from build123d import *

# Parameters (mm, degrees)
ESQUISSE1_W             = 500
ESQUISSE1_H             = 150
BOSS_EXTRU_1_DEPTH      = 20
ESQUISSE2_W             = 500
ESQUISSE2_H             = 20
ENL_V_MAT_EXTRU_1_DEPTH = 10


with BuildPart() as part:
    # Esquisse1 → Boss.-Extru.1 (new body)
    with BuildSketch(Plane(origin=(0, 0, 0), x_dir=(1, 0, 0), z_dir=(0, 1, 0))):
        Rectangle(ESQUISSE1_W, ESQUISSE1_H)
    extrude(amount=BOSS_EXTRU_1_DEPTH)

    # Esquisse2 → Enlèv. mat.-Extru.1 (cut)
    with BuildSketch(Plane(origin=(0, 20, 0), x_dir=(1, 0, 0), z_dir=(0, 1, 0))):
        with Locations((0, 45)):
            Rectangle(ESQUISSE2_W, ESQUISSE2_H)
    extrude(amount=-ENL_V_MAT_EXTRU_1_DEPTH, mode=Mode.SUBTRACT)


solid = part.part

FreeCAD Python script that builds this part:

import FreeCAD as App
import Part
import Sketcher
from FreeCAD import Vector


def add_polygon(sketch, points):
    """Adds a closed chain of lines whose ends are joined by coincident constraints."""
    first, n = sketch.GeometryCount, len(points)
    for a, b in zip(points, points[1:] + points[:1]):
        sketch.addGeometry(Part.LineSegment(App.Vector(*a, 0), App.Vector(*b, 0)), False)
    for i in range(n):
        sketch.addConstraint(Sketcher.Constraint("Coincident", first + i, 2, first + (i + 1) % n, 1))

doc = App.newDocument("Part")
params = doc.addObject("Spreadsheet::Sheet", "Params")
for row, (alias, value) in enumerate([
    ("sketch1_width", "500 mm"),
    ("sketch1_height", "150 mm"),
    ("pad1_length", "20 mm"),
    ("sketch2_width", "500 mm"),
    ("sketch2_height", "20 mm"),
    ("pocket1_length", "10 mm"),
], start=1):
    params.set(f"A{row}", alias)
    params.set(f"B{row}", "=" + value)
    params.setAlias(f"B{row}", alias)

body = doc.addObject("PartDesign::Body", "Body")

sketch1 = doc.addObject("Sketcher::SketchObject", "Sketch")
body.addObject(sketch1)
sketch1.AttachmentSupport = (doc.XZ_Plane, [""])
sketch1.MapMode = "FlatFace"
add_polygon(sketch1, [(-250, -75), (-250, 75), (250, 75), (250, -75)])
sketch1.addConstraint(Sketcher.Constraint("Vertical", 0))
sketch1.addConstraint(Sketcher.Constraint("Horizontal", 1))
sketch1.addConstraint(Sketcher.Constraint("Vertical", 2))
sketch1.addConstraint(Sketcher.Constraint("Horizontal", 3))
sketch1.addConstraint(Sketcher.Constraint("Symmetric", 0, 2, 2, 2, -1, 1))
sketch1.addConstraint(Sketcher.Constraint("DistanceX", 1, 1, 1, 2, 500.0))
sketch1.addConstraint(Sketcher.Constraint("DistanceY", 0, 1, 0, 2, 150.0))
sketch1.setExpression("Constraints[9]", "Params.sketch1_width")
sketch1.setExpression("Constraints[10]", "Params.sketch1_height")
pad1 = doc.addObject("PartDesign::Pad", "Pad")
body.addObject(pad1)
pad1.Profile = sketch1
pad1.setExpression("Length", "Params.pad1_length")
pad1.Reversed = True

sketch2 = doc.addObject("Sketcher::SketchObject", "Sketch001")
body.addObject(sketch2)
sketch2.AttachmentSupport = (doc.XZ_Plane, [""])
sketch2.MapMode = "FlatFace"
sketch2.AttachmentOffset = App.Placement(Vector(0, 0, -20), App.Rotation())
add_polygon(sketch2, [(-250, -55), (-250, -35), (250, -35), (250, -55)])
sketch2.addConstraint(Sketcher.Constraint("Vertical", 0))
sketch2.addConstraint(Sketcher.Constraint("Horizontal", 1))
sketch2.addConstraint(Sketcher.Constraint("Vertical", 2))
sketch2.addConstraint(Sketcher.Constraint("Horizontal", 3))
sketch2.addConstraint(Sketcher.Constraint("DistanceX", 1, 1, 1, 2, 500.0))
sketch2.addConstraint(Sketcher.Constraint("DistanceY", 0, 1, 0, 2, 20.0))
sketch2.addConstraint(Sketcher.Constraint("DistanceX", 0, 2, -1, 1, 250.0))
sketch2.addConstraint(Sketcher.Constraint("DistanceY", 0, 2, -1, 1, 35.0))
sketch2.setExpression("Constraints[8]", "Params.sketch2_width")
sketch2.setExpression("Constraints[9]", "Params.sketch2_height")
pocket1 = doc.addObject("PartDesign::Pocket", "Pocket")
body.addObject(pocket1)
pocket1.Profile = sketch2
pocket1.setExpression("Length", "Params.pocket1_length")
pocket1.Reversed = True

doc.recompute()
